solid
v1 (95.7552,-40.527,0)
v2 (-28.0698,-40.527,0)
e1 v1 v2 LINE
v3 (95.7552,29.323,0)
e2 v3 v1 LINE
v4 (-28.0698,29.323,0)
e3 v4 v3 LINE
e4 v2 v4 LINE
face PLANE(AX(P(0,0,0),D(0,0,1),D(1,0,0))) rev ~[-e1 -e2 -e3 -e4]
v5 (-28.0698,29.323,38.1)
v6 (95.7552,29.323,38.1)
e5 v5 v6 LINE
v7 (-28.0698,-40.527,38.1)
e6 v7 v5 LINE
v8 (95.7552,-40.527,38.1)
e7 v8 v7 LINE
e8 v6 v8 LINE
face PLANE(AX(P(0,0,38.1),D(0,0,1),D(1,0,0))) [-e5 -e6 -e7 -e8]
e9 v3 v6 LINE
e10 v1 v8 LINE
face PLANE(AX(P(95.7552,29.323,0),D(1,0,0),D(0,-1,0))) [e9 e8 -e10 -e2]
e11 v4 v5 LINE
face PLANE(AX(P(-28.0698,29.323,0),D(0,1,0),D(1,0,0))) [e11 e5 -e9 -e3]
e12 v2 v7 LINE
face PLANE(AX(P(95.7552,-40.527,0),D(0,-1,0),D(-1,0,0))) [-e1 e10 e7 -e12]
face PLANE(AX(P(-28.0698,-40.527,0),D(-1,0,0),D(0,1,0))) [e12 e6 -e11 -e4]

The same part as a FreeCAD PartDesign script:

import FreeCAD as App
import Part
import Sketcher
Q = App.Units.Quantity

doc = App.newDocument("Part")
body = doc.addObject("PartDesign::Body", "Body")

# Sketch on XY plane
sketch1 = body.newObject("Sketcher::SketchObject", "Sketch")
sketch1.AttachmentSupport = (doc.getObject("XY_Plane"), [""])
sketch1.MapMode = "FlatFace"
sketch1.addGeometry(Part.LineSegment(App.Vector(95.7552, 29.323, 0), App.Vector(-28.0698, 29.323, 0)), False)
sketch1.addGeometry(Part.LineSegment(App.Vector(-28.0698, 29.323, 0), App.Vector(-28.0698, -40.527, 0)), False)
sketch1.addGeometry(Part.LineSegment(App.Vector(-28.0698, -40.527, 0), App.Vector(95.7552, -40.527, 0)), False)
sketch1.addGeometry(Part.LineSegment(App.Vector(95.7552, -40.527, 0), App.Vector(95.7552, 29.323, 0)), False)
sketch1.addConstraint(Sketcher.Constraint("Coincident", 0, 2, 1, 1))
sketch1.addConstraint(Sketcher.Constraint("Coincident", 1, 2, 2, 1))
sketch1.addConstraint(Sketcher.Constraint("Coincident", 2, 2, 3, 1))
sketch1.addConstraint(Sketcher.Constraint("Coincident", 3, 2, 0, 1))
sketch1.addConstraint(Sketcher.Constraint("Horizontal", 0))
sketch1.addConstraint(Sketcher.Constraint("Vertical", 1))
sketch1.addConstraint(Sketcher.Constraint("Horizontal", 2))
sketch1.addConstraint(Sketcher.Constraint("Vertical", 3))
sketch1.addConstraint(Sketcher.Constraint("DistanceY", 1, 2, 1, 1, Q("2.75 in")))
sketch1.addConstraint(Sketcher.Constraint("DistanceX", 0, 2, 0, 1, Q("4.875 in")))
sketch1.addConstraint(Sketcher.Constraint("DistanceX", 0, 2, -1, 1, Q("1.1051 in")))
sketch1.addConstraint(Sketcher.Constraint("DistanceY", -1, 1, 0, 2, 29.323))
pad1 = body.newObject("PartDesign::Pad", "Pad")
pad1.Profile = sketch1
pad1.Length = Q("1.5 in")

doc.recompute()
